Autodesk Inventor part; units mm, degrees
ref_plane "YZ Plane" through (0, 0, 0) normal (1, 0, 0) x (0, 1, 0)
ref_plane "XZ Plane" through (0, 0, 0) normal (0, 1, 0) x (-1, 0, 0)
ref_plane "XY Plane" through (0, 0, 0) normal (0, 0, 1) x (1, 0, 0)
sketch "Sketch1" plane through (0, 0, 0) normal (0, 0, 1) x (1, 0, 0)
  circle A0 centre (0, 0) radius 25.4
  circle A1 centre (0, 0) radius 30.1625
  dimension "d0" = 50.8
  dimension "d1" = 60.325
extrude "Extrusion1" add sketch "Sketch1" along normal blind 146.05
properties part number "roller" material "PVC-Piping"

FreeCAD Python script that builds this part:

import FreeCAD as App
import Part
import Sketcher
Q = App.Units.Quantity

doc = App.newDocument("Part")
params = doc.addObject("Spreadsheet::Sheet", "Params")
for row, (alias, value) in enumerate([
    ("sketch1_diameter", "2 in"),
    ("sketch1_diameter2", "2.375 in"),
    ("pad1_length", "5.75 in"),
], start=1):
    params.set(f"A{row}", alias)
    params.set(f"B{row}", "=" + value)
    params.setAlias(f"B{row}", alias)

body = doc.addObject("PartDesign::Body", "Body")

# Sketch on XY plane
sketch1 = body.newObject("Sketcher::SketchObject", "Sketch")
sketch1.AttachmentSupport = (doc.getObject("XY_Plane"), [""])
sketch1.MapMode = "FlatFace"
sketch1.addGeometry(Part.Circle(App.Vector(0, 0, 0), App.Vector(0, 0, 1), 30), False)
sketch1.addGeometry(Part.Circle(App.Vector(0, 0, 0), App.Vector(0, 0, 1), 25), False)
sketch1.addConstraint(Sketcher.Constraint("Coincident", 0, 3, -1, 1))
sketch1.addConstraint(Sketcher.Constraint("Coincident", 1, 3, -1, 1))
sketch1.addConstraint(Sketcher.Constraint("Diameter", 1, Q("2 in")))
sketch1.addConstraint(Sketcher.Constraint("Diameter", 0, Q("2.375 in")))
sketch1.setExpression("Constraints[2]", "Params.sketch1_diameter")
sketch1.setExpression("Constraints[3]", "Params.sketch1_diameter2")
pad1 = body.newObject("PartDesign::Pad", "Pad")
pad1.Profile = sketch1
pad1.setExpression("Length", "Params.pad1_length")

doc.recompute()
